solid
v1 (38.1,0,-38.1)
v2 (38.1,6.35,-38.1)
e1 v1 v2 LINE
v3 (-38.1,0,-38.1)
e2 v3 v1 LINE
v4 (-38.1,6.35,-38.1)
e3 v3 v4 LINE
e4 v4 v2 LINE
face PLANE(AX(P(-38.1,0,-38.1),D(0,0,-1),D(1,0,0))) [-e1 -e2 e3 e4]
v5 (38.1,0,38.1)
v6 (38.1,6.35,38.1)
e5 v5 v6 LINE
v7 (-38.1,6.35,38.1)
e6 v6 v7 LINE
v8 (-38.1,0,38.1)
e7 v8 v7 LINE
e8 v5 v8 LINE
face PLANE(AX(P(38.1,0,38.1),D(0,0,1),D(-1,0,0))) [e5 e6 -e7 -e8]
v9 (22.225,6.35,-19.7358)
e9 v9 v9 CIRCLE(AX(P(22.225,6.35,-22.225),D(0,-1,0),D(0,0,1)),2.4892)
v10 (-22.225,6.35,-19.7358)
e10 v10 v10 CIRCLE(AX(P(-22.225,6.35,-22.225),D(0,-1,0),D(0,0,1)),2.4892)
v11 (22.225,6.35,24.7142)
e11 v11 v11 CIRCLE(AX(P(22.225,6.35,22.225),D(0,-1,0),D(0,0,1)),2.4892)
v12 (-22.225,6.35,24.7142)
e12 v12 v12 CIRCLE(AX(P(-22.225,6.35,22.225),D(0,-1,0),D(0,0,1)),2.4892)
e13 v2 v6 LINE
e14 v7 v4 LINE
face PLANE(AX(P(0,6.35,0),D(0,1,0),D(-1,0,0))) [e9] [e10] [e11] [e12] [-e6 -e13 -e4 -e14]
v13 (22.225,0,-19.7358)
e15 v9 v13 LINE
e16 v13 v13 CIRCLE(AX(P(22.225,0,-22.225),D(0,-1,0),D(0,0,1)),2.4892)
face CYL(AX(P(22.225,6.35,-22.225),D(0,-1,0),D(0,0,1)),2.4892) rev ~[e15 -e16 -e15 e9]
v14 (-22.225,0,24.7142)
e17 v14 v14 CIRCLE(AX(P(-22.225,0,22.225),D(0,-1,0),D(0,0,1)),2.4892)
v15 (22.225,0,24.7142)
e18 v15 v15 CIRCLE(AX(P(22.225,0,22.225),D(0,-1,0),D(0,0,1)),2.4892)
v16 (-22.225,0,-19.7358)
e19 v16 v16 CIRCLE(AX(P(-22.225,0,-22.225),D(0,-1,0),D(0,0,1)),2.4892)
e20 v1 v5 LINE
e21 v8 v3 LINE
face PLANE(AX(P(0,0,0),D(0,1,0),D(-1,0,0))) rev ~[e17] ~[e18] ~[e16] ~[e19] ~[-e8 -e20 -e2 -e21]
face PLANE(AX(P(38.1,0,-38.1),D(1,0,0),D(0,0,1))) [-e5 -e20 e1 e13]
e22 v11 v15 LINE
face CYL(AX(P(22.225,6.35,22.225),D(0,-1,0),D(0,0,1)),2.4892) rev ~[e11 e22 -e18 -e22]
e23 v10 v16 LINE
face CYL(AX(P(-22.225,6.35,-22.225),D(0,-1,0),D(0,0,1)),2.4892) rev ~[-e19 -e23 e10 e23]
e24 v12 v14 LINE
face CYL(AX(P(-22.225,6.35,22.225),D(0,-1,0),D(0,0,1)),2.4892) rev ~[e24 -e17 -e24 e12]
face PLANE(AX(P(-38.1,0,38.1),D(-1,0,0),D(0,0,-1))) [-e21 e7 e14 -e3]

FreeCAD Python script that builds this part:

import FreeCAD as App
import Part
import Sketcher
from FreeCAD import Vector
Q = App.Units.Quantity

doc = App.newDocument("Part")
body = doc.addObject("PartDesign::Body", "Body")

sketch1 = body.newObject("Sketcher::SketchObject", "Sketch")
sketch1.AttachmentSupport = (doc.getObject("XZ_Plane"), [""])
sketch1.MapMode = "FlatFace"
sketch1.addGeometry([
    Part.LineSegment(Vector(38.1, -38.1, 0), Vector(-38.1, -38.1, 0)),
    Part.LineSegment(Vector(-38.1, -38.1, 0), Vector(-38.1, 38.1, 0)),
    Part.LineSegment(Vector(-38.1, 38.1, 0), Vector(38.1, 38.1, 0)),
    Part.LineSegment(Vector(38.1, 38.1, 0), Vector(38.1, -38.1, 0)),
], False)
sketch1.addConstraint([
    Sketcher.Constraint("Coincident", 0, 2, 1, 1),
    Sketcher.Constraint("Coincident", 1, 2, 2, 1),
    Sketcher.Constraint("Coincident", 2, 2, 3, 1),
    Sketcher.Constraint("Coincident", 3, 2, 0, 1),
    Sketcher.Constraint("Horizontal", 0),
    Sketcher.Constraint("Vertical", 1),
    Sketcher.Constraint("Horizontal", 2),
    Sketcher.Constraint("Vertical", 3),
    Sketcher.Constraint("Symmetric", 0, 2, 2, 2, -1, 1),
    Sketcher.Constraint("Equal", 2, 1),
    Sketcher.Constraint("DistanceX", 0, 2, 0, 1, Q("3 in")),
])
pad1 = body.newObject("PartDesign::Pad", "Pad")
pad1.Profile = sketch1
pad1.Length = Q("0.25 in")
pad1.Reversed = True

sketch2 = body.newObject("Sketcher::SketchObject", "Sketch001")
sketch2.AttachmentSupport = (doc.getObject("XZ_Plane"), [""])
sketch2.MapMode = "FlatFace"
sketch2.AttachmentOffset = App.Placement(Vector(0, 0, -0.25 * 25.4), App.Rotation())
sketch2.addGeometry([
    Part.Circle(Vector(-22.225, -22.225, 0), Vector(0, 0, 1), 2.4892),
    Part.Circle(Vector(22.225, 22.225, 0), Vector(0, 0, 1), 2.4892),
    Part.Circle(Vector(22.225, -22.225, 0), Vector(0, 0, 1), 2.4892),
    Part.Circle(Vector(-22.225, 22.225, 0), Vector(0, 0, 1), 2.4892),
], False)
sketch2.addConstraint([
    Sketcher.Constraint("Equal", 0, 1),
    Sketcher.Constraint("Equal", 1, 2),
    Sketcher.Constraint("Equal", 2, 3),
    Sketcher.Constraint("Symmetric", 0, 3, 1, 3, -1, 1),
    Sketcher.Constraint("Symmetric", 2, 3, 3, 3, -1, 1),
    Sketcher.Constraint("Symmetric", 0, 3, 2, 3, -2),
    Sketcher.Constraint("Diameter", 0, Q("0.196 in")),
    Sketcher.Constraint("DistanceX", 0, 3, 1, 3, Q("1.75 in")),
    Sketcher.Constraint("DistanceY", 0, 3, 1, 3, Q("1.75 in")),
])
doc.recompute()
hole = body.newObject("PartDesign::Hole", "Hole")
hole.Profile = sketch2
hole.ThreadType = "None"
hole.Diameter = Q("0.196 in")
hole.DepthType = "ThroughAll"
hole.Reversed = True

doc.recompute()
